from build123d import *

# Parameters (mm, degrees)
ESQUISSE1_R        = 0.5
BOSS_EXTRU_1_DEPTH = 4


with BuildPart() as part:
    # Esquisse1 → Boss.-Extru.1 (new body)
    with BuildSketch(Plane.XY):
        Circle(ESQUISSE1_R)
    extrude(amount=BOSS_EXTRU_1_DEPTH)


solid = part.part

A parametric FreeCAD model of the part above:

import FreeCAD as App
import Part
import Sketcher
from FreeCAD import Vector

doc = App.newDocument("Part")
body = doc.addObject("PartDesign::Body", "Body")

sketch1 = body.newObject("Sketcher::SketchObject", "Sketch")
sketch1.AttachmentSupport = (doc.getObject("XY_Plane"), [""])
sketch1.MapMode = "FlatFace"
sketch1.addGeometry(Part.Circle(Vector(0, 0, 0), Vector(0, 0, 1), 0.5), False)
sketch1.addConstraint([
    Sketcher.Constraint("Coincident", 0, 3, -1, 1),
    Sketcher.Constraint("Diameter", 0, 1.0),
])
pad1 = body.newObject("PartDesign::Pad", "Pad")
pad1.Profile = sketch1
pad1.Length = 4

doc.recompute()
